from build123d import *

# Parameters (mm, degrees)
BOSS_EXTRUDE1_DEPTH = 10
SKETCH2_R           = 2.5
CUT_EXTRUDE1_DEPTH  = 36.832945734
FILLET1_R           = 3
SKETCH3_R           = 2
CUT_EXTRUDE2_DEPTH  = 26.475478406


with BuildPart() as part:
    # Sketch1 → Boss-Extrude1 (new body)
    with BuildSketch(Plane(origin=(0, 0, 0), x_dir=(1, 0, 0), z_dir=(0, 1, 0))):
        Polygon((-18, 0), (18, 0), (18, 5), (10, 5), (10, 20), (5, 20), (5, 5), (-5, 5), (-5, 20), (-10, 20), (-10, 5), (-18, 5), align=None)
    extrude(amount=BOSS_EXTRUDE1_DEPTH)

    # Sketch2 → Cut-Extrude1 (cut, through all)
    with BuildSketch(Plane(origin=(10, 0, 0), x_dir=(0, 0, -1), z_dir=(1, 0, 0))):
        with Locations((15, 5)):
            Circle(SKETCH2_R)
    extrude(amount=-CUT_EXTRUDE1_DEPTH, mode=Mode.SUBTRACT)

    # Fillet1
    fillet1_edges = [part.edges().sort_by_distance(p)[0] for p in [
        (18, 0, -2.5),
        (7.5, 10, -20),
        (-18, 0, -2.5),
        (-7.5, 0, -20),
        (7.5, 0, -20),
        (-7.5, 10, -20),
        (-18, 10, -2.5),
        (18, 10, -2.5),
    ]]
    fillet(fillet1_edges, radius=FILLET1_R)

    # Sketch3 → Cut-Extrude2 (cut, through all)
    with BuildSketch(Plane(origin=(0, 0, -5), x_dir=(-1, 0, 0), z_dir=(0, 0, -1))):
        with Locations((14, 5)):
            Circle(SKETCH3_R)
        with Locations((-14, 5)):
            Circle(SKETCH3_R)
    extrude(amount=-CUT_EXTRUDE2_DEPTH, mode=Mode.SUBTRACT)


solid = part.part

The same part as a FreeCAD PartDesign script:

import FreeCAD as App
import Part
import Sketcher
Q = App.Units.Quantity


def edges_at(feature, points):
    """Names of the edges that pass closest to the given points."""
    edges = feature.Shape.Edges
    near = lambda p: min(range(len(edges)), key=lambda i: edges[i].distToShape(Part.Vertex(*p))[0])
    return sorted({f"Edge{near(p) + 1}" for p in points})


def add_polygon(sketch, points):
    """Adds a closed chain of lines whose ends are joined by coincident constraints."""
    first, n = sketch.GeometryCount, len(points)
    for a, b in zip(points, points[1:] + points[:1]):
        sketch.addGeometry(Part.LineSegment(App.Vector(*a, 0), App.Vector(*b, 0)), False)
    for i in range(n):
        sketch.addConstraint(Sketcher.Constraint("Coincident", first + i, 2, first + (i + 1) % n, 1))

doc = App.newDocument("Part")
body = doc.addObject("PartDesign::Body", "Body")

# Sketch on XZ plane
sketch1 = body.newObject("Sketcher::SketchObject", "Sketch")
sketch1.AttachmentSupport = (doc.getObject("XZ_Plane"), [""])
sketch1.MapMode = "FlatFace"
add_polygon(sketch1, [(-18, 0), (18, 0), (18, -5), (10, -5), (10, -20), (5, -20), (5, -5), (-5, -5), (-5, -20), (-10, -20), (-10, -5), (-18, -5)])  # lines 0-11
sketch1.addConstraint([
    Sketcher.Constraint("Horizontal", 0),
    Sketcher.Constraint("Vertical", 1),
    Sketcher.Constraint("Horizontal", 2),
    Sketcher.Constraint("Vertical", 3),
    Sketcher.Constraint("Horizontal", 4),
    Sketcher.Constraint("Vertical", 5),
    Sketcher.Constraint("Horizontal", 6),
    Sketcher.Constraint("Vertical", 7),
    Sketcher.Constraint("Horizontal", 8),
    Sketcher.Constraint("Vertical", 9),
    Sketcher.Constraint("Horizontal", 10),
    Sketcher.Constraint("Vertical", 11),
    Sketcher.Constraint("Symmetric", 0, 2, 11, 2, -1, 1),
    Sketcher.Constraint("Symmetric", 4, 2, 7, 2, -2),
    Sketcher.Constraint("Symmetric", 2, 2, 9, 2, -2),
    Sketcher.Constraint("Horizontal", 2, 2, 5, 2),
    Sketcher.Constraint("Equal", 8, 1),
    Sketcher.Constraint("DistanceX", 0, 1, 0, 2, Q("36 mm")),
    Sketcher.Constraint("DistanceX", 2, 2, 2, 1, Q("8 mm")),
    Sketcher.Constraint("DistanceX", 4, 2, 4, 1, Q("5 mm")),
    Sketcher.Constraint("DistanceY", 3, 2, 3, 1, Q("15 mm")),
])
pad1 = body.newObject("PartDesign::Pad", "Pad")
pad1.Profile = sketch1
pad1.Length = 10
pad1.Reversed = True

# Sketch on YZ plane
sketch2 = body.newObject("Sketcher::SketchObject", "Sketch001")
sketch2.AttachmentSupport = (doc.getObject("YZ_Plane"), [""])
sketch2.MapMode = "FlatFace"
sketch2.AttachmentOffset = App.Placement(App.Vector(0, 0, 10), App.Rotation())
sketch2.addGeometry(Part.Circle(App.Vector(5, -15, 0), App.Vector(0, 0, 1), 2.5), False)
sketch2.addConstraint([
    Sketcher.Constraint("Diameter", 0, Q("5 mm")),
    Sketcher.Constraint("DistanceX", -1, 1, 0, 3, Q("5 mm")),
    Sketcher.Constraint("DistanceY", 0, 3, -1, 1, Q("15 mm")),
])
pocket1 = body.newObject("PartDesign::Pocket", "Pocket")
pocket1.Profile = sketch2
pocket1.Type = "ThroughAll"
doc.recompute()

fillet = body.newObject("PartDesign::Fillet", "Fillet")
fillet.Base = (pocket1, edges_at(pocket1, [
    (18, 0, -2.5),
    (7.5, 10, -20),
    (-18, 0, -2.5),
    (-7.5, 0, -20),
    (7.5, 0, -20),
    (-7.5, 10, -20),
    (-18, 10, -2.5),
    (18, 10, -2.5),
]))
fillet.Radius = 3

# Sketch on XY plane
sketch3 = body.newObject("Sketcher::SketchObject", "Sketch002")
sketch3.AttachmentSupport = (doc.getObject("XY_Plane"), [""])
sketch3.MapMode = "FlatFace"
sketch3.AttachmentOffset = App.Placement(App.Vector(0, 0, -5), App.Rotation())
sketch3.addGeometry([
    Part.Circle(App.Vector(-14, 5, 0), App.Vector(0, 0, 1), 2),
    Part.Circle(App.Vector(14, 5, 0), App.Vector(0, 0, 1), 2),
], False)
sketch3.addConstraint([
    Sketcher.Constraint("Equal", 0, 1),
    Sketcher.Constraint("Symmetric", 0, 3, 1, 3, -2),
    Sketcher.Constraint("Diameter", 0, Q("4 mm")),
    Sketcher.Constraint("DistanceX", 0, 3, -1, 1, Q("14 mm")),
    Sketcher.Constraint("DistanceY", -1, 1, 0, 3, Q("5 mm")),
])
pocket2 = body.newObject("PartDesign::Pocket", "Pocket001")
pocket2.Profile = sketch3
pocket2.Type = "ThroughAll"
pocket2.Reversed = True

doc.recompute()
